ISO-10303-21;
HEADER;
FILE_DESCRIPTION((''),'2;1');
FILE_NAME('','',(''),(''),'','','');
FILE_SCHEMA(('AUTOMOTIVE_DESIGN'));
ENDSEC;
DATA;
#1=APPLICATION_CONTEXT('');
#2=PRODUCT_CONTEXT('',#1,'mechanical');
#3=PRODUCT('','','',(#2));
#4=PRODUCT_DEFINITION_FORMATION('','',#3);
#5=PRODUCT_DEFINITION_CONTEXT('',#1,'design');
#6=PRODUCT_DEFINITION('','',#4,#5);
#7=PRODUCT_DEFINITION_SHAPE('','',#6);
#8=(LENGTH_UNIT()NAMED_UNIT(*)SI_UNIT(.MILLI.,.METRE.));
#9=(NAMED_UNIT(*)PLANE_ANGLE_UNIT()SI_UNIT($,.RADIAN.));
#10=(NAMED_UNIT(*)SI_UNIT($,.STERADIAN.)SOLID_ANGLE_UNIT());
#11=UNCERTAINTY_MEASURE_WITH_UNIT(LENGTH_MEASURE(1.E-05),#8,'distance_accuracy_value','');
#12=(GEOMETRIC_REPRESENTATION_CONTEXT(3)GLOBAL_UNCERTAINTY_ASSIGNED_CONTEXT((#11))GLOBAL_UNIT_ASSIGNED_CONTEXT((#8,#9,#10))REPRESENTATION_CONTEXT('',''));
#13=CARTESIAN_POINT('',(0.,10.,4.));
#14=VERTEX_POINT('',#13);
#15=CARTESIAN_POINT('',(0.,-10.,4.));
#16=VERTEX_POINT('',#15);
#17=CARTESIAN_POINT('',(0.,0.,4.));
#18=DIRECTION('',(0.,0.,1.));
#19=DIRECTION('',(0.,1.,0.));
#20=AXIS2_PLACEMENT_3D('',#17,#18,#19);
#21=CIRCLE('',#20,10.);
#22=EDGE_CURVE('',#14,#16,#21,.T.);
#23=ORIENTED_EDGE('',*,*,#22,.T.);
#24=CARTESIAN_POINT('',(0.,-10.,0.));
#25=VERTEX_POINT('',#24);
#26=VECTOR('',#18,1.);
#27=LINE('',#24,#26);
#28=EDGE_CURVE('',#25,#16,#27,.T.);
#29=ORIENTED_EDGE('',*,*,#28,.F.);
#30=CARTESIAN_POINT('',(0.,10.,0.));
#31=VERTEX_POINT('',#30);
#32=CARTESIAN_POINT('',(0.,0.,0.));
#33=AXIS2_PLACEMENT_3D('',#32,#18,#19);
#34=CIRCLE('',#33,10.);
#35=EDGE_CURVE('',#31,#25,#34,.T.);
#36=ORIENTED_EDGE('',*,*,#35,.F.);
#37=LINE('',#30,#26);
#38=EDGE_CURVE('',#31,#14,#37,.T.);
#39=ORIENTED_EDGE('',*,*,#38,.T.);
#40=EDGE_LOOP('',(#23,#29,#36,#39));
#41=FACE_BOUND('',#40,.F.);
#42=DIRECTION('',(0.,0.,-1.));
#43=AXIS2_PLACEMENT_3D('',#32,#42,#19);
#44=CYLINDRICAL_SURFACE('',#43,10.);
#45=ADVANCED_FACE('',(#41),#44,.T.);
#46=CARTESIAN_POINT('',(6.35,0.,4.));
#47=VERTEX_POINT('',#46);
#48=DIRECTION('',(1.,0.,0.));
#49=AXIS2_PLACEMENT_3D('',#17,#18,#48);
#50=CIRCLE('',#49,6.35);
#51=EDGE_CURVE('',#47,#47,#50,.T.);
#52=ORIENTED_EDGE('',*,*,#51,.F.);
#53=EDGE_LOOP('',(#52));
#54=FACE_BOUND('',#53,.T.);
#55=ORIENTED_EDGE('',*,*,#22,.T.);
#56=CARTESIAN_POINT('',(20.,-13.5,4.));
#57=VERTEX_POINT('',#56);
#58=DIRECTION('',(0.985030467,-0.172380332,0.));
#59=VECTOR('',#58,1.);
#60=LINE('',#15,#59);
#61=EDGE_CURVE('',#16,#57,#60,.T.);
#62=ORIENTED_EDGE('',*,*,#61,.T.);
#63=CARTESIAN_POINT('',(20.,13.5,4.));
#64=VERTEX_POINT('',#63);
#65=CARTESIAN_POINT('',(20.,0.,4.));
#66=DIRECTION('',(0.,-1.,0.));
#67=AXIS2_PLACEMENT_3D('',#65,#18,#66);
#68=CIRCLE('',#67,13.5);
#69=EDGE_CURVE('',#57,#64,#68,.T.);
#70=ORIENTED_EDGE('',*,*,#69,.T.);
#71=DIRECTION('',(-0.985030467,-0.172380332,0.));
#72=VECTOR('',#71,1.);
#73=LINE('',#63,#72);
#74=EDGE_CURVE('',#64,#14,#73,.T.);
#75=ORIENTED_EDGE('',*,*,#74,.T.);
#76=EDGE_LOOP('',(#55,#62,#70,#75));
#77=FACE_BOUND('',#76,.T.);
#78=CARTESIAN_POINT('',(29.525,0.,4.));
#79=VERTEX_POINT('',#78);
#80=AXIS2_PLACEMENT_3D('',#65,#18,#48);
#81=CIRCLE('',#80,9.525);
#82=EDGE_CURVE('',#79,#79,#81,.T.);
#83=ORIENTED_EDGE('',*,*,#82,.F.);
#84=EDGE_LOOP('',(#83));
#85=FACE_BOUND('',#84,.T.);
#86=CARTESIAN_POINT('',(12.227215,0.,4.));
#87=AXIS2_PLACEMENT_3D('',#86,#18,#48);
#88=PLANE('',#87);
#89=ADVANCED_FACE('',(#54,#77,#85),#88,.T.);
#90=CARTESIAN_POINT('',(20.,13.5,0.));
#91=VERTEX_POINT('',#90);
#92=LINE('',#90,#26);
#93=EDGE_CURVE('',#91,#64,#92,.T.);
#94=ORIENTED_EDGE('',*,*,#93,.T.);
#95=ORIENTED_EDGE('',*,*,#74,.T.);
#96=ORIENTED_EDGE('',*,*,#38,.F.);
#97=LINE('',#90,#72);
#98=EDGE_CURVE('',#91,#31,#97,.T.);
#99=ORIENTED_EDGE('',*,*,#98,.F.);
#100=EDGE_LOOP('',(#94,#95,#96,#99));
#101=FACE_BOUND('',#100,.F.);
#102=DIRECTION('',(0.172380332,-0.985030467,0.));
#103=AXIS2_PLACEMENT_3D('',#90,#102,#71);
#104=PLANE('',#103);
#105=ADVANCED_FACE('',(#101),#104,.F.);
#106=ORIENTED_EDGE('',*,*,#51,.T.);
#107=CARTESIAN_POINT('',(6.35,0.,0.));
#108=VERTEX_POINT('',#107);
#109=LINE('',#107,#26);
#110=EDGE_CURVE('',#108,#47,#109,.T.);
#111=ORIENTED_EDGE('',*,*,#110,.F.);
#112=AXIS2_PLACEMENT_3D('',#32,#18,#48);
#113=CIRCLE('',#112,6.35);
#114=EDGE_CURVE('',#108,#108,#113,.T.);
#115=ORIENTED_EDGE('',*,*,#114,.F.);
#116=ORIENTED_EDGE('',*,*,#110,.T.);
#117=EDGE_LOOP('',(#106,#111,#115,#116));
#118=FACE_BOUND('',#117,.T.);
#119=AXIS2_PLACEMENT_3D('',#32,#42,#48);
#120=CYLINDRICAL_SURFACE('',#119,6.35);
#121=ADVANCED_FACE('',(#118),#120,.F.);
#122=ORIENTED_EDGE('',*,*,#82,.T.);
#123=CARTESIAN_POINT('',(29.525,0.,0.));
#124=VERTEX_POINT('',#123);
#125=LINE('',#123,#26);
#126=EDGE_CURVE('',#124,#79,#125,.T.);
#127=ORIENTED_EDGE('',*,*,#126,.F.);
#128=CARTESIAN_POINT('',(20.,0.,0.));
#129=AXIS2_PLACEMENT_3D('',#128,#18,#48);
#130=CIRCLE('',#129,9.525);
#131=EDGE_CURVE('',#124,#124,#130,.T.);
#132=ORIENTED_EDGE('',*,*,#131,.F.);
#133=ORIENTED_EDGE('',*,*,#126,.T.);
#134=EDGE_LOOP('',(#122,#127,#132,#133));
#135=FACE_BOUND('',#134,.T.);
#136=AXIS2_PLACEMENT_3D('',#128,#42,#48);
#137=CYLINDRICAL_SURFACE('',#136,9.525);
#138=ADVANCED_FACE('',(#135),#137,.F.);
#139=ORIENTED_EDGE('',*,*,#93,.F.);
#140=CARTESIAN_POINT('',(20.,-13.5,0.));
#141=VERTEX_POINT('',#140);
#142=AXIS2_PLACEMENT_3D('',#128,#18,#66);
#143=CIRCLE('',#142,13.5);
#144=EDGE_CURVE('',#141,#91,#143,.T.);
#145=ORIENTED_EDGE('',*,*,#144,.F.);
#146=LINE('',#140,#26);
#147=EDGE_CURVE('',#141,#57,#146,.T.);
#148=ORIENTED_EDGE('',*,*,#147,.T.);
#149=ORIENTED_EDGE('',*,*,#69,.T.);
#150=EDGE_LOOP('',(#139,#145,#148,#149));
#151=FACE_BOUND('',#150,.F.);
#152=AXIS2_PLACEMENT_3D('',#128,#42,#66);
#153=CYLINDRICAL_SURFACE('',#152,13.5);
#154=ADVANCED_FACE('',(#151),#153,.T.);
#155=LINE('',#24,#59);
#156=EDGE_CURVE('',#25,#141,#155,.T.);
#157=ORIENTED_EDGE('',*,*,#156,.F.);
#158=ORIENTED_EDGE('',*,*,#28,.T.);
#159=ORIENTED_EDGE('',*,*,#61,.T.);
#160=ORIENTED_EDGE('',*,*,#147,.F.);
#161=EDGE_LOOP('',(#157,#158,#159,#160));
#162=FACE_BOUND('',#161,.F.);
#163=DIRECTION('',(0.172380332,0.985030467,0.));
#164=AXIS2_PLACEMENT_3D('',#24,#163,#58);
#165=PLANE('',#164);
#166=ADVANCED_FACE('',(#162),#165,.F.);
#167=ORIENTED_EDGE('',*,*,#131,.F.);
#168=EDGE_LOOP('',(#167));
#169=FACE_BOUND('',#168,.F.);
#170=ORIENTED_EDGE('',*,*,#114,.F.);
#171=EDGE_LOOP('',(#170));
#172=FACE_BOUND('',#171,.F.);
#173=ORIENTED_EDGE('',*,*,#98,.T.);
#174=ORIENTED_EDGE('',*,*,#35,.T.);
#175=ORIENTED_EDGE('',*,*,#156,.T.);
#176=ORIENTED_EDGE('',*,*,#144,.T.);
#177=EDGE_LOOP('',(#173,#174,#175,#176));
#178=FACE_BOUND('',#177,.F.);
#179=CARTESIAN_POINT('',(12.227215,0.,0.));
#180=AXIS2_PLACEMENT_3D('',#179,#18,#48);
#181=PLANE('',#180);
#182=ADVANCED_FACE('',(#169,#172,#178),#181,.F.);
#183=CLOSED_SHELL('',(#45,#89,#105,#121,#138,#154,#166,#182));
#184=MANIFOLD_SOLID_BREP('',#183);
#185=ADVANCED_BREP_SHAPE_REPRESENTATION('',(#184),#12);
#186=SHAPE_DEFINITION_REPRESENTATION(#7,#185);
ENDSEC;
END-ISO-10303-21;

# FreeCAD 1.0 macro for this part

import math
import FreeCAD as App
import Part
import Sketcher

doc = App.newDocument("Part")
params = doc.addObject("Spreadsheet::Sheet", "Params")
for row, (alias, value) in enumerate([
    ("sketch1_radius", "10 mm"),
    ("sketch1_diameter", "12.7 mm"),
    ("sketch1_radius2", "13.5 mm"),
    ("sketch1_diameter2", "19.05 mm"),
    ("pad1_length", "4 mm"),
], start=1):
    params.set(f"A{row}", alias)
    params.set(f"B{row}", "=" + value)
    params.setAlias(f"B{row}", alias)

body = doc.addObject("PartDesign::Body", "Body")

# Sketch on XY plane
sketch1 = body.newObject("Sketcher::SketchObject", "Sketch")
sketch1.AttachmentSupport = (doc.getObject("XY_Plane"), [""])
sketch1.MapMode = "FlatFace"
sketch1.addGeometry([
    Part.LineSegment(App.Vector(20, 14, 0), App.Vector(0, 10, 0)),  # 0
    Part.ArcOfCircle(Part.Circle(App.Vector(0, 0, 0), App.Vector(0, 0, 1), 10), math.radians(90), math.radians(270)),  # 1
    Part.LineSegment(App.Vector(0, -10, 0), App.Vector(20, -14, 0)),  # 2
    Part.ArcOfCircle(Part.Circle(App.Vector(20, 0, 0), App.Vector(0, 0, 1), 14), math.radians(-90), math.radians(90)),  # 3
    Part.Circle(App.Vector(0, 0, 0), App.Vector(0, 0, 1), 6),  # 4
    Part.Circle(App.Vector(20, 0, 0), App.Vector(0, 0, 1), 10),  # 5
], False)
sketch1.addConstraint([
    Sketcher.Constraint("Coincident", 0, 2, 1, 1),
    Sketcher.Constraint("Coincident", 1, 2, 2, 1),
    Sketcher.Constraint("Coincident", 2, 2, 3, 1),
    Sketcher.Constraint("Coincident", 3, 2, 0, 1),
    Sketcher.Constraint("Coincident", 1, 3, -1, 1),
    Sketcher.Constraint("Coincident", 4, 3, -1, 1),
    Sketcher.Constraint("Coincident", 5, 3, 3, 3),
    Sketcher.Constraint("Symmetric", 2, 2, 3, 2, -1),
    Sketcher.Constraint("PointOnObject", 0, 2, -2),
    Sketcher.Constraint("PointOnObject", 1, 2, -2),
    Sketcher.Constraint("Vertical", 5, 3, 2, 2),
    Sketcher.Constraint("Radius", 1, 10.0),
    Sketcher.Constraint("Diameter", 4, 12.7),
    Sketcher.Constraint("Radius", 3, 13.5),
    Sketcher.Constraint("Diameter", 5, 19.05),
    Sketcher.Constraint("DistanceX", -1, 1, 3, 3, 20.0),
])
sketch1.setExpression("Constraints[11]", "Params.sketch1_radius")
sketch1.setExpression("Constraints[12]", "Params.sketch1_diameter")
sketch1.setExpression("Constraints[13]", "Params.sketch1_radius2")
sketch1.setExpression("Constraints[14]", "Params.sketch1_diameter2")
pad1 = body.newObject("PartDesign::Pad", "Pad")
pad1.Profile = sketch1
pad1.setExpression("Length", "Params.pad1_length")

doc.recompute()
